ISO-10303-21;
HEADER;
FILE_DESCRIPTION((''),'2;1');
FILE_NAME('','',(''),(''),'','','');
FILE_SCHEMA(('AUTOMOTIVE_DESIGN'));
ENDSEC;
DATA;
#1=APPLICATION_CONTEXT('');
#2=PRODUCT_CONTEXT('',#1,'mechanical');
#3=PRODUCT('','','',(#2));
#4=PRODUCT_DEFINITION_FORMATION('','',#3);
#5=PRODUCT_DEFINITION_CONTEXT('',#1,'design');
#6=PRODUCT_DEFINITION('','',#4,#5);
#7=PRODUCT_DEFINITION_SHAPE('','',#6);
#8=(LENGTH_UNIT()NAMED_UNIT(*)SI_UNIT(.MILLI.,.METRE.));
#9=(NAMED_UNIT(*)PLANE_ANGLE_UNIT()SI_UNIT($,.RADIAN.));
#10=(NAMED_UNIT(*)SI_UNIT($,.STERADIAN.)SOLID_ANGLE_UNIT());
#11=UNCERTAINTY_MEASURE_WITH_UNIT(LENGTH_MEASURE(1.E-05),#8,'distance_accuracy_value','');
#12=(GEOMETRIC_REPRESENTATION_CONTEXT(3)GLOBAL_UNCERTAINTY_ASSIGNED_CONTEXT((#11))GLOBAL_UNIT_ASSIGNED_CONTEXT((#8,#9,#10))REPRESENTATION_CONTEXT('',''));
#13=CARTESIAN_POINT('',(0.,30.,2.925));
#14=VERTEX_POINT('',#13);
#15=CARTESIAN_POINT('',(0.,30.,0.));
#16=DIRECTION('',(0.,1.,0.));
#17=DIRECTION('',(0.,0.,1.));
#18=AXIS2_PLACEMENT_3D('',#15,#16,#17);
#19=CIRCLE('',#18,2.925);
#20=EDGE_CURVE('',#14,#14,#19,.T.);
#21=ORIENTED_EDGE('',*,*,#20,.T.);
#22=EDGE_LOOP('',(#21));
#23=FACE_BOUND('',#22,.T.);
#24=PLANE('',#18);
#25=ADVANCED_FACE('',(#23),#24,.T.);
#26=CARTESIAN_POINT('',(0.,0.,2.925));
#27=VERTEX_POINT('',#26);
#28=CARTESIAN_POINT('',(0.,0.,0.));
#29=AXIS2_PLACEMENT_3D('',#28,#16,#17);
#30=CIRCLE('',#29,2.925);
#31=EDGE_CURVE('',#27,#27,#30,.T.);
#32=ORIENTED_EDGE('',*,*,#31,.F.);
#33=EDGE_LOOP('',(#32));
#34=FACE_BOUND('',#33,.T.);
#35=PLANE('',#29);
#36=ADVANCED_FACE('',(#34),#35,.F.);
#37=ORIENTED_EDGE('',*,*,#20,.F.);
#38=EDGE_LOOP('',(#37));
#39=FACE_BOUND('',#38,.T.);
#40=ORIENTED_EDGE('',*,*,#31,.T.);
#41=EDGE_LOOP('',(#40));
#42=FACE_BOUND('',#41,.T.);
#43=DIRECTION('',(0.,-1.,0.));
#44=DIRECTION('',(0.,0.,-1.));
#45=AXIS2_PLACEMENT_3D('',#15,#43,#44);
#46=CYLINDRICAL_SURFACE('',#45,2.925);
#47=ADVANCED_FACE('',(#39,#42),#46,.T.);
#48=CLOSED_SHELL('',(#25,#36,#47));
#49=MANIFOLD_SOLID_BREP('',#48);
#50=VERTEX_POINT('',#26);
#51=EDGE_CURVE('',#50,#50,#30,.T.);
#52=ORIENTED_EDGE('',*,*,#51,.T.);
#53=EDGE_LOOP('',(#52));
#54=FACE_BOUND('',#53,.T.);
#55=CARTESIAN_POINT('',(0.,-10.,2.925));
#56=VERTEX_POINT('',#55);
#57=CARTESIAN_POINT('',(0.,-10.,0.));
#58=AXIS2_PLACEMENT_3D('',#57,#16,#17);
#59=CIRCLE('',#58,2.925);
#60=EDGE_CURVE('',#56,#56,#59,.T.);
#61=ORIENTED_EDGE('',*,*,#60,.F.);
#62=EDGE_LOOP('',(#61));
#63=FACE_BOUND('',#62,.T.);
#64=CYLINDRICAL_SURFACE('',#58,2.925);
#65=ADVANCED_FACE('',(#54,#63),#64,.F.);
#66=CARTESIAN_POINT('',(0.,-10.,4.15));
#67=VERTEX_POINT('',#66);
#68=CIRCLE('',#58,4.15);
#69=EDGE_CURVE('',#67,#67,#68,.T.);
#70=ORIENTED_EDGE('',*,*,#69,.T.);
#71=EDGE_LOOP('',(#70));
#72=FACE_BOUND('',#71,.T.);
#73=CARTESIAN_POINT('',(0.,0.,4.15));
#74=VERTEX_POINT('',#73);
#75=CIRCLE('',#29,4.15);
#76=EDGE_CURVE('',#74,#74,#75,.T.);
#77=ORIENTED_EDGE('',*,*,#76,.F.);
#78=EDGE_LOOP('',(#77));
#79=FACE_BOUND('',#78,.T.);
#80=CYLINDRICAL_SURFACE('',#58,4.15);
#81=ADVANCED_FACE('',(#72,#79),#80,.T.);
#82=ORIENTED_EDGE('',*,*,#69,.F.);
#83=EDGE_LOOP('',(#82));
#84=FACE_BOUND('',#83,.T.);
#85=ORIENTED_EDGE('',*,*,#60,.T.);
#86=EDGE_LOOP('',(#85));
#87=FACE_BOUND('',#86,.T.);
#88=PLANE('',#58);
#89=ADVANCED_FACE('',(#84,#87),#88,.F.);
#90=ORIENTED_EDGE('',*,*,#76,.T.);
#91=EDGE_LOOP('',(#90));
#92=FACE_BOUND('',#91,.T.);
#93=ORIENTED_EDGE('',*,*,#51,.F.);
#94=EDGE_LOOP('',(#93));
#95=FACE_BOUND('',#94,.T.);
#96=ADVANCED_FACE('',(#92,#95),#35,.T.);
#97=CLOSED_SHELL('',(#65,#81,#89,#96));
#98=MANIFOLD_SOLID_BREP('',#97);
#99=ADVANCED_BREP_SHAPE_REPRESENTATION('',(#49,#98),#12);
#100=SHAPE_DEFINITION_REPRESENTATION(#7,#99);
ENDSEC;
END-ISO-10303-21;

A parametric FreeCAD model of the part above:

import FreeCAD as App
import Part
import Sketcher
from FreeCAD import Vector
Q = App.Units.Quantity

doc = App.newDocument("Part")
body = doc.addObject("PartDesign::Body", "Body")

# Sketch on XZ plane
sketch1 = doc.addObject("Sketcher::SketchObject", "Sketch")
body.addObject(sketch1)
sketch1.AttachmentSupport = (doc.XZ_Plane, [""])
sketch1.MapMode = "FlatFace"
sketch1.addGeometry(Part.Circle(Vector(0, 0, 0), Vector(0, 0, 1), 2.9), False)
sketch1.addConstraint(Sketcher.Constraint("Coincident", 0, 3, -1, 1))
sketch1.addConstraint(Sketcher.Constraint("Diameter", 0, Q("5.85 mm")))
pad1 = doc.addObject("PartDesign::Pad", "Pad")
body.addObject(pad1)
pad1.Profile = sketch1
pad1.Length = 30
pad1.Reversed = True
body2 = doc.addObject("PartDesign::Body", "Body001")

# Sketch on XZ plane
sketch2 = doc.addObject("Sketcher::SketchObject", "Sketch001")
body2.addObject(sketch2)
sketch2.AttachmentSupport = (doc.getObject("XZ_Plane001"), [""])
sketch2.MapMode = "FlatFace"
sketch2.addGeometry(Part.Circle(Vector(0, 0, 0), Vector(0, 0, 1), 4.2), False)
sketch2.addGeometry(Part.Circle(Vector(0, 0, 0), Vector(0, 0, 1), 2.9), False)
sketch2.addConstraint(Sketcher.Constraint("Coincident", 0, 3, -1, 1))
sketch2.addConstraint(Sketcher.Constraint("Coincident", 1, 3, -1, 1))
sketch2.addConstraint(Sketcher.Constraint("Diameter", 0, Q("8.3 mm")))
sketch2.addConstraint(Sketcher.Constraint("Diameter", 1, Q("5.85 mm")))
pad2 = doc.addObject("PartDesign::Pad", "Pad001")
body2.addObject(pad2)
pad2.Profile = sketch2
pad2.Length = 10

doc.recompute()
